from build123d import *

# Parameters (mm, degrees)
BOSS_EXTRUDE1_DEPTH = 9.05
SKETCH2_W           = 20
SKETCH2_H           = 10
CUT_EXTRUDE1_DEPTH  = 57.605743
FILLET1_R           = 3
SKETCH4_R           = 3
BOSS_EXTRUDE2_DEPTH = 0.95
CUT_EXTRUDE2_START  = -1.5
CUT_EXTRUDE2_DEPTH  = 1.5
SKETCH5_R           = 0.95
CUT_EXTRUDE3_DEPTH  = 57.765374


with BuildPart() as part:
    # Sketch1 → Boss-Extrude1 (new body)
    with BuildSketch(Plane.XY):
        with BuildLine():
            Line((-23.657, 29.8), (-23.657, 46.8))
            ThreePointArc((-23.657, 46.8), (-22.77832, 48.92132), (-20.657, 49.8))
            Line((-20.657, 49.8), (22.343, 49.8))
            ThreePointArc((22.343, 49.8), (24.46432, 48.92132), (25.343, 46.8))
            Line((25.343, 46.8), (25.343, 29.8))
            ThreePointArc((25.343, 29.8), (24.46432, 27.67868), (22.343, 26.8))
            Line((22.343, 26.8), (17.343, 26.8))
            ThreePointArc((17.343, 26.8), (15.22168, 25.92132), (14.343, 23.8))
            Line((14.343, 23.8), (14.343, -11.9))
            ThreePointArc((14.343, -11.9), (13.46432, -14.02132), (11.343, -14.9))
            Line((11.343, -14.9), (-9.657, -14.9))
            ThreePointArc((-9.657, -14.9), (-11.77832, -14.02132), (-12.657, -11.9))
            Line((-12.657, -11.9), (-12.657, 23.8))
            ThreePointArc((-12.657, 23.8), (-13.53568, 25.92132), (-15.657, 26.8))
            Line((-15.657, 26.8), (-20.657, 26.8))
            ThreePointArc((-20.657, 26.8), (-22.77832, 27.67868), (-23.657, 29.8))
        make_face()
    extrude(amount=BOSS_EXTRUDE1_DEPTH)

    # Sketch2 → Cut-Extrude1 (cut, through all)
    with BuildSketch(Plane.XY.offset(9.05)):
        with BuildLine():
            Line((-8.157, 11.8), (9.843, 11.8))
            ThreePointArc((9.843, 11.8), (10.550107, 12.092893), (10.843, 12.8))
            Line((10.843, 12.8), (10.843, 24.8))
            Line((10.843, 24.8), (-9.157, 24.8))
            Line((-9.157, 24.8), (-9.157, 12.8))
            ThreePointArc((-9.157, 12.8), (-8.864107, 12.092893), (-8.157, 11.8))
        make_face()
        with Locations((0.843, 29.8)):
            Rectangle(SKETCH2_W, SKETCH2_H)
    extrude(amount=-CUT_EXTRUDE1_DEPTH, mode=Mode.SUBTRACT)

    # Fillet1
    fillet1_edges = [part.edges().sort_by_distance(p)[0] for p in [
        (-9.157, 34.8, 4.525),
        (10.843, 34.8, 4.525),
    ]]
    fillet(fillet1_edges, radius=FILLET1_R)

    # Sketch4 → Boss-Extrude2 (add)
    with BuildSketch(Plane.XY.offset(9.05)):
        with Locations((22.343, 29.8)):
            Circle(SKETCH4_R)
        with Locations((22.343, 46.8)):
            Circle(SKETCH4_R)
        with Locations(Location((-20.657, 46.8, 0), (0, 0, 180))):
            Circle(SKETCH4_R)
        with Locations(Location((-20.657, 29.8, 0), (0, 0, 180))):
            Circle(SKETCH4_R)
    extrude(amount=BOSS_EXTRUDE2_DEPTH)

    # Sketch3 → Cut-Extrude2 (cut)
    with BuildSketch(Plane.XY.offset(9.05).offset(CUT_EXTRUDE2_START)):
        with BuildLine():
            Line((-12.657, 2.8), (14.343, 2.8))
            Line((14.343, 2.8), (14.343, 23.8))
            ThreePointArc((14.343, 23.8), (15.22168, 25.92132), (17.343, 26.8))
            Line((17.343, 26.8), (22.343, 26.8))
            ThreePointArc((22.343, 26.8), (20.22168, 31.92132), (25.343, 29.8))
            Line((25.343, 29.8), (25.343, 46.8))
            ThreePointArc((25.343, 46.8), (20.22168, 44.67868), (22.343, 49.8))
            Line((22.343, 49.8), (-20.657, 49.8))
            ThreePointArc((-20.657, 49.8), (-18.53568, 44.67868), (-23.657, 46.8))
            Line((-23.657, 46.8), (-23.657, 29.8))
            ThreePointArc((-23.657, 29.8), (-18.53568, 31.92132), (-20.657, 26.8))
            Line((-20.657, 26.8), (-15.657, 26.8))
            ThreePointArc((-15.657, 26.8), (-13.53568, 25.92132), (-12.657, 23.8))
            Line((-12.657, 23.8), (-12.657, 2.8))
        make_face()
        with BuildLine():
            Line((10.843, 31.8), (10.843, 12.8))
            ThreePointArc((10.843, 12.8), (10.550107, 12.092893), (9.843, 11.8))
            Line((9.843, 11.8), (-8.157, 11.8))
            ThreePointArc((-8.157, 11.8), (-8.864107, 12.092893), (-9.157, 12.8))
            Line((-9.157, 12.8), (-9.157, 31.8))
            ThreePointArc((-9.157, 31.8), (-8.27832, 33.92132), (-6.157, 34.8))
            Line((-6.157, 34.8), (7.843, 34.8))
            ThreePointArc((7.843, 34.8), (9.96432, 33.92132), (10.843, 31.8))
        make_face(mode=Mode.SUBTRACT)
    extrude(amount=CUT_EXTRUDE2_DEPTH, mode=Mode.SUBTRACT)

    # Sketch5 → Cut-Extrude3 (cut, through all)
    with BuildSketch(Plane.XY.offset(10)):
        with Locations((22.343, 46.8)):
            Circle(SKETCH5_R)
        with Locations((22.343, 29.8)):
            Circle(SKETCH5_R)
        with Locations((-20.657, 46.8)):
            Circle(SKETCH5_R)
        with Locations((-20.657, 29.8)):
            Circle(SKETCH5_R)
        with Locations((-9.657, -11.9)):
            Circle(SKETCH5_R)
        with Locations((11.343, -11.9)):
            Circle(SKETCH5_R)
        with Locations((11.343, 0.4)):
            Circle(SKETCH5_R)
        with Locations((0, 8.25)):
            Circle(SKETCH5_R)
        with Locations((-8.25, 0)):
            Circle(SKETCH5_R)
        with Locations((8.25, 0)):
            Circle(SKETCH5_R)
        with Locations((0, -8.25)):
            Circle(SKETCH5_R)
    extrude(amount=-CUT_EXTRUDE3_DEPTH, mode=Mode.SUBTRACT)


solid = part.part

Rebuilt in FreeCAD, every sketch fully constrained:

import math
import FreeCAD as App
import Part
import Sketcher

V = App.Vector


def edges_at(feature, points):
    """Names of the edges that pass closest to the given points."""
    edges = feature.Shape.Edges
    near = lambda p: min(range(len(edges)), key=lambda i: edges[i].distToShape(Part.Vertex(*p))[0])
    return sorted({f"Edge{near(p) + 1}" for p in points})

doc = App.newDocument("Part")
body = doc.addObject("PartDesign::Body", "Body")

# Sketch on XY plane
sketch1 = body.newObject("Sketcher::SketchObject", "Sketch")
sketch1.AttachmentSupport = (doc.getObject("XY_Plane"), [""])
sketch1.MapMode = "FlatFace"
sketch1.addGeometry([
    Part.LineSegment(V(-23.7, 46.8, 0), V(-23.7, 29.8, 0)),  # 0
    Part.ArcOfCircle(Part.Circle(V(-20.7, 29.8, 0), V(0, 0, 1), 3), math.radians(-180), math.radians(-90)),  # 1
    Part.LineSegment(V(-20.7, 26.8, 0), V(-15.7, 26.8, 0)),  # 2
    Part.ArcOfCircle(Part.Circle(V(-15.7, 23.8, 0), V(0, 0, 1), 3), math.radians(0), math.radians(90)),  # 3
    Part.LineSegment(V(-12.7, 23.8, 0), V(-12.7, -11.9, 0)),  # 4
    Part.ArcOfCircle(Part.Circle(V(-9.7, -11.9, 0), V(0, 0, 1), 3), math.radians(-180), math.radians(-90)),  # 5
    Part.LineSegment(V(-9.7, -14.9, 0), V(11.3, -14.9, 0)),  # 6
    Part.ArcOfCircle(Part.Circle(V(11.3, -11.9, 0), V(0, 0, 1), 3), math.radians(-90), math.radians(0)),  # 7
    Part.LineSegment(V(14.3, -11.9, 0), V(14.3, 23.8, 0)),  # 8
    Part.ArcOfCircle(Part.Circle(V(17.3, 23.8, 0), V(0, 0, 1), 3), math.radians(90), math.radians(180)),  # 9
    Part.LineSegment(V(17.3, 26.8, 0), V(22.3, 26.8, 0)),  # 10
    Part.ArcOfCircle(Part.Circle(V(22.3, 29.8, 0), V(0, 0, 1), 3), math.radians(-90), math.radians(0)),  # 11
    Part.LineSegment(V(25.3, 29.8, 0), V(25.3, 46.8, 0)),  # 12
    Part.ArcOfCircle(Part.Circle(V(22.3, 46.8, 0), V(0, 0, 1), 3), math.radians(0), math.radians(90)),  # 13
    Part.LineSegment(V(22.3, 49.8, 0), V(-20.7, 49.8, 0)),  # 14
    Part.ArcOfCircle(Part.Circle(V(-20.7, 46.8, 0), V(0, 0, 1), 3), math.radians(90), math.radians(180)),  # 15
], False)
sketch1.addConstraint([
    Sketcher.Constraint("Tangent", 0, 2, 1, 1),
    Sketcher.Constraint("Tangent", 1, 2, 2, 1),
    Sketcher.Constraint("Tangent", 2, 2, 3, 2),
    Sketcher.Constraint("Tangent", 3, 1, 4, 1),
    Sketcher.Constraint("Tangent", 4, 2, 5, 1),
    Sketcher.Constraint("Tangent", 5, 2, 6, 1),
    Sketcher.Constraint("Tangent", 6, 2, 7, 1),
    Sketcher.Constraint("Tangent", 7, 2, 8, 1),
    Sketcher.Constraint("Tangent", 8, 2, 9, 2),
    Sketcher.Constraint("Tangent", 9, 1, 10, 1),
    Sketcher.Constraint("Tangent", 10, 2, 11, 1),
    Sketcher.Constraint("Tangent", 11, 2, 12, 1),
    Sketcher.Constraint("Tangent", 12, 2, 13, 1),
    Sketcher.Constraint("Tangent", 13, 2, 14, 1),
    Sketcher.Constraint("Tangent", 14, 2, 15, 1),
    Sketcher.Constraint("Tangent", 15, 2, 0, 1),
    Sketcher.Constraint("Vertical", 0),
    Sketcher.Constraint("Horizontal", 2),
    Sketcher.Constraint("Vertical", 4),
    Sketcher.Constraint("Horizontal", 6),
    Sketcher.Constraint("Vertical", 8),
    Sketcher.Constraint("Horizontal", 10),
    Sketcher.Constraint("Vertical", 12),
    Sketcher.Constraint("Horizontal", 14),
    Sketcher.Constraint("Equal", 1, 3),
    Sketcher.Constraint("Equal", 3, 5),
    Sketcher.Constraint("Equal", 5, 7),
    Sketcher.Constraint("Equal", 7, 9),
    Sketcher.Constraint("Equal", 9, 11),
    Sketcher.Constraint("Equal", 11, 13),
    Sketcher.Constraint("Equal", 13, 15),
    Sketcher.Constraint("Horizontal", 3, 3, 9, 3),
    Sketcher.Constraint("Equal", 2, 10),
    Sketcher.Constraint("Radius", 1, 3.000001),
    Sketcher.Constraint("DistanceX", 2, 1, 2, 2, 5.0),
    Sketcher.Constraint("DistanceX", 6, 1, 6, 2, 21.0),
    Sketcher.Constraint("DistanceY", 0, 2, 0, 1, 17.0),
    Sketcher.Constraint("DistanceY", 4, 2, 4, 1, 35.7),
    Sketcher.Constraint("DistanceY", -1, 1, 1, 3, 29.800001),
    Sketcher.Constraint("DistanceX", 1, 3, -1, 1, 20.656999),
])
pad1 = body.newObject("PartDesign::Pad", "Pad")
pad1.Profile = sketch1
pad1.Length = 9.05

# Sketch on XY plane
sketch2 = body.newObject("Sketcher::SketchObject", "Sketch001")
sketch2.AttachmentSupport = (doc.getObject("XY_Plane"), [""])
sketch2.MapMode = "FlatFace"
sketch2.AttachmentOffset = App.Placement(V(0, 0, 9.05), App.Rotation())
sketch2.addGeometry([
    Part.LineSegment(V(-8.2, 11.8, 0), V(9.8, 11.8, 0)),  # 0
    Part.ArcOfCircle(Part.Circle(V(9.8, 12.8, 0), V(0, 0, 1), 1), math.radians(-90), math.radians(0)),  # 1
    Part.LineSegment(V(10.8, 12.8, 0), V(10.8, 34.8, 0)),  # 2
    Part.LineSegment(V(10.8, 34.8, 0), V(-9.2, 34.8, 0)),  # 3
    Part.LineSegment(V(-9.2, 34.8, 0), V(-9.2, 12.8, 0)),  # 4
    Part.ArcOfCircle(Part.Circle(V(-8.2, 12.8, 0), V(0, 0, 1), 1), math.radians(180), math.radians(270)),  # 5
], False)
sketch2.addConstraint([
    Sketcher.Constraint("Tangent", 0, 2, 1, 1),
    Sketcher.Constraint("Tangent", 1, 2, 2, 1),
    Sketcher.Constraint("Coincident", 2, 2, 3, 1),
    Sketcher.Constraint("Coincident", 3, 2, 4, 1),
    Sketcher.Constraint("Tangent", 4, 2, 5, 1),
    Sketcher.Constraint("Tangent", 5, 2, 0, 1),
    Sketcher.Constraint("Horizontal", 0),
    Sketcher.Constraint("Vertical", 2),
    Sketcher.Constraint("Horizontal", 3),
    Sketcher.Constraint("Vertical", 4),
    Sketcher.Constraint("Equal", 1, 5),
    Sketcher.Constraint("Radius", 1, 0.999999),
    Sketcher.Constraint("DistanceX", 0, 1, 0, 2, 18.0),
    Sketcher.Constraint("DistanceY", 2, 1, 2, 2, 22.0),
    Sketcher.Constraint("DistanceY", -1, 1, 1, 3, 12.799999),
    Sketcher.Constraint("DistanceX", -1, 1, 1, 3, 9.843001),
])
pocket1 = body.newObject("PartDesign::Pocket", "Pocket")
pocket1.Profile = sketch2
pocket1.Type = "ThroughAll"
doc.recompute()

fillet = body.newObject("PartDesign::Fillet", "Fillet")
fillet.Base = (pocket1, edges_at(pocket1, [(-9.157, 34.8, 4.525), (10.843, 34.8, 4.525)]))
fillet.Radius = 3

# Sketch on XY plane
sketch3 = body.newObject("Sketcher::SketchObject", "Sketch002")
sketch3.AttachmentSupport = (doc.getObject("XY_Plane"), [""])
sketch3.MapMode = "FlatFace"
sketch3.AttachmentOffset = App.Placement(V(0, 0, 9.05), App.Rotation())
sketch3.addGeometry([
    Part.Circle(V(22.3, 29.8, 0), V(0, 0, 1), 3),
    Part.Circle(V(22.3, 46.8, 0), V(0, 0, 1), 3),
    Part.Circle(V(-20.7, 46.8, 0), V(0, 0, 1), 3),
    Part.Circle(V(-20.7, 29.8, 0), V(0, 0, 1), 3),
], False)
sketch3.addConstraint([
    Sketcher.Constraint("Equal", 0, 1),
    Sketcher.Constraint("Equal", 1, 2),
    Sketcher.Constraint("Equal", 2, 3),
    Sketcher.Constraint("Horizontal", 1, 3, 2, 3),
    Sketcher.Constraint("Horizontal", 0, 3, 3, 3),
    Sketcher.Constraint("Vertical", 0, 3, 1, 3),
    Sketcher.Constraint("Vertical", 2, 3, 3, 3),
    Sketcher.Constraint("Diameter", 0, 6.0),
    Sketcher.Constraint("DistanceY", 0, 3, 1, 3, 17.0),
    Sketcher.Constraint("DistanceX", 2, 3, 1, 3, 43.0),
    Sketcher.Constraint("DistanceY", -1, 1, 0, 3, 29.8),
    Sketcher.Constraint("DistanceX", -1, 1, 0, 3, 22.343),
])
pad2 = body.newObject("PartDesign::Pad", "Pad001")
pad2.Profile = sketch3
pad2.Length = 0.95

# Sketch on XY plane
sketch4 = body.newObject("Sketcher::SketchObject", "Sketch003")
sketch4.AttachmentSupport = (doc.getObject("XY_Plane"), [""])
sketch4.MapMode = "FlatFace"
sketch4.AttachmentOffset = App.Placement(V(0, 0, 7.55), App.Rotation())
sketch4.addGeometry([
    Part.LineSegment(V(-12.7, 2.8, 0), V(14.3, 2.8, 0)),  # 0
    Part.LineSegment(V(14.3, 2.8, 0), V(14.3, 23.8, 0)),  # 1
    Part.ArcOfCircle(Part.Circle(V(17.3, 23.8, 0), V(0, 0, 1), 3), math.radians(90), math.radians(180)),  # 2
    Part.LineSegment(V(17.3, 26.8, 0), V(22.3, 26.8, 0)),  # 3
    Part.ArcOfCircle(Part.Circle(V(22.3, 29.8, 0), V(0, 0, 1), 3), math.radians(0), math.radians(270)),  # 4
    Part.LineSegment(V(25.3, 29.8, 0), V(25.3, 46.8, 0)),  # 5
    Part.ArcOfCircle(Part.Circle(V(22.3, 46.8, 0), V(0, 0, 1), 3), math.radians(90), math.radians(360)),  # 6
    Part.LineSegment(V(22.3, 49.8, 0), V(-20.7, 49.8, 0)),  # 7
    Part.ArcOfCircle(Part.Circle(V(-20.7, 46.8, 0), V(0, 0, 1), 3), math.radians(-180), math.radians(90)),  # 8
    Part.LineSegment(V(-23.7, 46.8, 0), V(-23.7, 29.8, 0)),  # 9
    Part.ArcOfCircle(Part.Circle(V(-20.7, 29.8, 0), V(0, 0, 1), 3), math.radians(-90), math.radians(180)),  # 10
    Part.LineSegment(V(-20.7, 26.8, 0), V(-15.7, 26.8, 0)),  # 11
    Part.ArcOfCircle(Part.Circle(V(-15.7, 23.8, 0), V(0, 0, 1), 3), math.radians(0), math.radians(90)),  # 12
    Part.LineSegment(V(-12.7, 23.8, 0), V(-12.7, 2.8, 0)),  # 13
    Part.ArcOfCircle(Part.Circle(V(7.8, 31.8, 0), V(0, 0, 1), 3), math.radians(0), math.radians(90)),  # 14
    Part.LineSegment(V(10.8, 31.8, 0), V(10.8, 12.8, 0)),  # 15
    Part.ArcOfCircle(Part.Circle(V(9.8, 12.8, 0), V(0, 0, 1), 1), math.radians(-90), math.radians(0)),  # 16
    Part.LineSegment(V(9.8, 11.8, 0), V(-8.2, 11.8, 0)),  # 17
    Part.ArcOfCircle(Part.Circle(V(-8.2, 12.8, 0), V(0, 0, 1), 1), math.radians(180), math.radians(270)),  # 18
    Part.LineSegment(V(-9.2, 12.8, 0), V(-9.2, 31.8, 0)),  # 19
    Part.ArcOfCircle(Part.Circle(V(-6.2, 31.8, 0), V(0, 0, 1), 3), math.radians(90), math.radians(180)),  # 20
    Part.LineSegment(V(-6.2, 34.8, 0), V(7.8, 34.8, 0)),  # 21
], False)
sketch4.addConstraint([
    Sketcher.Constraint("Coincident", 0, 2, 1, 1),
    Sketcher.Constraint("Tangent", 1, 2, 2, 2),
    Sketcher.Constraint("Tangent", 2, 1, 3, 1),
    Sketcher.Constraint("Tangent", 3, 2, 4, 2),
    Sketcher.Constraint("Tangent", 4, 1, 5, 1),
    Sketcher.Constraint("Tangent", 5, 2, 6, 2),
    Sketcher.Constraint("Tangent", 6, 1, 7, 1),
    Sketcher.Constraint("Tangent", 7, 2, 8, 2),
    Sketcher.Constraint("Tangent", 8, 1, 9, 1),
    Sketcher.Constraint("Tangent", 9, 2, 10, 2),
    Sketcher.Constraint("Tangent", 10, 1, 11, 1),
    Sketcher.Constraint("Tangent", 11, 2, 12, 2),
    Sketcher.Constraint("Tangent", 12, 1, 13, 1),
    Sketcher.Constraint("Coincident", 13, 2, 0, 1),
    Sketcher.Constraint("Tangent", 14, 1, 15, 1),
    Sketcher.Constraint("Tangent", 15, 2, 16, 2),
    Sketcher.Constraint("Tangent", 16, 1, 17, 1),
    Sketcher.Constraint("Tangent", 17, 2, 18, 2),
    Sketcher.Constraint("Tangent", 18, 1, 19, 1),
    Sketcher.Constraint("Tangent", 19, 2, 20, 2),
    Sketcher.Constraint("Tangent", 20, 1, 21, 1),
    Sketcher.Constraint("Tangent", 21, 2, 14, 2),
    Sketcher.Constraint("Horizontal", 0),
    Sketcher.Constraint("Vertical", 1),
    Sketcher.Constraint("Horizontal", 3),
    Sketcher.Constraint("Vertical", 5),
    Sketcher.Constraint("Horizontal", 7),
    Sketcher.Constraint("Vertical", 9),
    Sketcher.Constraint("Horizontal", 11),
    Sketcher.Constraint("Vertical", 13),
    Sketcher.Constraint("Vertical", 15),
    Sketcher.Constraint("Horizontal", 17),
    Sketcher.Constraint("Vertical", 19),
    Sketcher.Constraint("Horizontal", 21),
    Sketcher.Constraint("Equal", 2, 4),
    Sketcher.Constraint("Equal", 4, 6),
    Sketcher.Constraint("Equal", 6, 8),
    Sketcher.Constraint("Equal", 8, 10),
    Sketcher.Constraint("Equal", 10, 12),
    Sketcher.Constraint("Equal", 12, 14),
    Sketcher.Constraint("Equal", 16, 18),
    Sketcher.Constraint("Equal", 14, 20),
    Sketcher.Constraint("Horizontal", 4, 3, 10, 3),
    Sketcher.Constraint("Equal", 3, 11),
    Sketcher.Constraint("Radius", 2, 3.000001),
    Sketcher.Constraint("Radius", 16, 0.999999),
    Sketcher.Constraint("DistanceX", 0, 1, 0, 2, 27.0),
    Sketcher.Constraint("DistanceX", 3, 1, 3, 2, 5.0),
    Sketcher.Constraint("DistanceX", 17, 2, 17, 1, 18.0),
    Sketcher.Constraint("DistanceY", 1, 1, 1, 2, 21.0),
    Sketcher.Constraint("DistanceY", 5, 1, 5, 2, 17.0),
    Sketcher.Constraint("DistanceY", 15, 2, 15, 1, 19.0),
    Sketcher.Constraint("DistanceY", 2, 3, 14, 3, 8.0),
    Sketcher.Constraint("DistanceY", -1, 1, 2, 3, 23.799999),
    Sketcher.Constraint("DistanceX", 14, 3, 4, 3, 14.500001),
    Sketcher.Constraint("DistanceX", -1, 1, 2, 3, 17.343001),
])
pocket2 = body.newObject("PartDesign::Pocket", "Pocket001")
pocket2.Profile = sketch4
pocket2.Length = 1.5
pocket2.Reversed = True

# Sketch on XY plane
sketch5 = body.newObject("Sketcher::SketchObject", "Sketch004")
sketch5.AttachmentSupport = (doc.getObject("XY_Plane"), [""])
sketch5.MapMode = "FlatFace"
sketch5.AttachmentOffset = App.Placement(V(0, 0, 10), App.Rotation())
sketch5.addGeometry([
    Part.Circle(V(22.3, 46.8, 0), V(0, 0, 1), 0.9),  # 0
    Part.Circle(V(22.3, 29.8, 0), V(0, 0, 1), 0.9),  # 1
    Part.Circle(V(-20.7, 46.8, 0), V(0, 0, 1), 0.9),  # 2
    Part.Circle(V(-20.7, 29.8, 0), V(0, 0, 1), 0.9),  # 3
    Part.Circle(V(-9.7, -11.9, 0), V(0, 0, 1), 0.9),  # 4
    Part.Circle(V(11.3, -11.9, 0), V(0, 0, 1), 0.9),  # 5
    Part.Circle(V(11.3, 0.4, 0), V(0, 0, 1), 0.9),  # 6
    Part.Circle(V(0, 8.2, 0), V(0, 0, 1), 0.9),  # 7
    Part.Circle(V(-8.2, 0, 0), V(0, 0, 1), 0.9),  # 8
    Part.Circle(V(8.2, 0, 0), V(0, 0, 1), 0.9),  # 9
    Part.Circle(V(0, -8.2, 0), V(0, 0, 1), 0.9),  # 10
], False)
sketch5.addConstraint([
    Sketcher.Constraint("Equal", 0, 1),
    Sketcher.Constraint("Equal", 1, 2),
    Sketcher.Constraint("Equal", 2, 3),
    Sketcher.Constraint("Equal", 3, 4),
    Sketcher.Constraint("Equal", 4, 5),
    Sketcher.Constraint("Equal", 5, 6),
    Sketcher.Constraint("Equal", 6, 7),
    Sketcher.Constraint("Equal", 7, 8),
    Sketcher.Constraint("Equal", 8, 9),
    Sketcher.Constraint("Equal", 9, 10),
    Sketcher.Constraint("Symmetric", 8, 3, 9, 3, -1, 1),
    Sketcher.Constraint("Symmetric", 7, 3, 10, 3, -1, 1),
    Sketcher.Constraint("PointOnObject", 7, 3, -2),
    Sketcher.Constraint("PointOnObject", 8, 3, -1),
    Sketcher.Constraint("Horizontal", 0, 3, 2, 3),
    Sketcher.Constraint("Horizontal", 1, 3, 3, 3),
    Sketcher.Constraint("Horizontal", 4, 3, 5, 3),
    Sketcher.Constraint("Vertical", 0, 3, 1, 3),
    Sketcher.Constraint("Vertical", 2, 3, 3, 3),
    Sketcher.Constraint("Vertical", 5, 3, 6, 3),
    Sketcher.Constraint("Diameter", 0, 1.9),
    Sketcher.Constraint("DistanceY", 1, 3, 0, 3, 17.0),
    Sketcher.Constraint("DistanceX", 2, 3, 0, 3, 43.0),
    Sketcher.Constraint("DistanceX", 3, 3, 4, 3, 11.0),
    Sketcher.Constraint("DistanceX", 4, 3, 5, 3, 21.0),
    Sketcher.Constraint("DistanceY", -1, 1, 0, 3, 46.8),
    Sketcher.Constraint("DistanceY", 4, 3, -1, 1, 11.9),
    Sketcher.Constraint("DistanceY", -1, 1, 6, 3, 0.4),
    Sketcher.Constraint("DistanceX", 8, 3, 9, 3, 16.5),
    Sketcher.Constraint("DistanceY", -1, 1, 7, 3, 8.25),
    Sketcher.Constraint("DistanceX", -1, 1, 0, 3, 22.343),
])
pocket3 = body.newObject("PartDesign::Pocket", "Pocket002")
pocket3.Profile = sketch5
pocket3.Type = "ThroughAll"

doc.recompute()
